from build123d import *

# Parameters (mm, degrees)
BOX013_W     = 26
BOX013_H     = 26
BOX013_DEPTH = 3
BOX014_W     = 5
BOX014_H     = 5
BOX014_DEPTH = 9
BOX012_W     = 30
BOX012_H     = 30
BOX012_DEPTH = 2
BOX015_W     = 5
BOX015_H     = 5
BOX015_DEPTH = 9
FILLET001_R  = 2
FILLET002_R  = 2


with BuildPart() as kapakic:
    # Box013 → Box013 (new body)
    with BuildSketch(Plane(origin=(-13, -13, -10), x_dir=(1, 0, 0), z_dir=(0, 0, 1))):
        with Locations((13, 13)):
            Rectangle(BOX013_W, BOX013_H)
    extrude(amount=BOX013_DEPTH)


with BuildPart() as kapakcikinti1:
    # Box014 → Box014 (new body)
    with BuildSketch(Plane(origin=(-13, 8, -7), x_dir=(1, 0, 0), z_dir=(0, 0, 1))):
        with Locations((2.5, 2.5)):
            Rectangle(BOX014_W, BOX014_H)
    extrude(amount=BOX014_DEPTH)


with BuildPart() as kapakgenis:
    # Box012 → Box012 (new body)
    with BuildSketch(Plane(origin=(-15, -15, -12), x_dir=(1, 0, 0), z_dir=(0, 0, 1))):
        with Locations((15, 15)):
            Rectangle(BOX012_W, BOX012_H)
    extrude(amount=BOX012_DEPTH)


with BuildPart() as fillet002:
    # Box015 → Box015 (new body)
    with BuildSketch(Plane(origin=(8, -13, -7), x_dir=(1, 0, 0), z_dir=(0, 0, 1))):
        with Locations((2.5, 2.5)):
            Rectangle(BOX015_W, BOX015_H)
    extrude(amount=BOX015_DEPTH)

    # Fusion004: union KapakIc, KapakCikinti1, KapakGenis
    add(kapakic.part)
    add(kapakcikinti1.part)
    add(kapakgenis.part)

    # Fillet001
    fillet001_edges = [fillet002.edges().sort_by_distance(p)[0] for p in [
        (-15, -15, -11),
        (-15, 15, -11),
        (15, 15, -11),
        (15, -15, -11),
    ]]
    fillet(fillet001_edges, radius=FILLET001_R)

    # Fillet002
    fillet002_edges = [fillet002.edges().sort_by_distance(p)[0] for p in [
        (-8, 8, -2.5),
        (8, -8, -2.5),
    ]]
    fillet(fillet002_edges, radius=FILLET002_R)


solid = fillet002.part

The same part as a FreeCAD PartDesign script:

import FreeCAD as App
import Part
import Sketcher
from FreeCAD import Vector
Q = App.Units.Quantity


def edges_at(feature, points):
    """Names of the edges that pass closest to the given points."""
    edges = feature.Shape.Edges
    near = lambda p: min(range(len(edges)), key=lambda i: edges[i].distToShape(Part.Vertex(*p))[0])
    return sorted({f"Edge{near(p) + 1}" for p in points})

doc = App.newDocument("Part")
body = doc.addObject("PartDesign::Body", "Body")

sketch1 = body.newObject("Sketcher::SketchObject", "Sketch")
sketch1.AttachmentSupport = (doc.getObject("XY_Plane"), [""])
sketch1.MapMode = "FlatFace"
sketch1.AttachmentOffset = App.Placement(Vector(0, 0, -10), App.Rotation())
sketch1.addGeometry(Part.LineSegment(Vector(-13, 13, 0), Vector(-13, -13, 0)), False)
sketch1.addGeometry(Part.LineSegment(Vector(-13, -13, 0), Vector(13, -13, 0)), False)
sketch1.addGeometry(Part.LineSegment(Vector(13, -13, 0), Vector(13, 13, 0)), False)
sketch1.addGeometry(Part.LineSegment(Vector(13, 13, 0), Vector(-13, 13, 0)), False)
sketch1.addConstraint(Sketcher.Constraint("Coincident", 0, 2, 1, 1))
sketch1.addConstraint(Sketcher.Constraint("Coincident", 1, 2, 2, 1))
sketch1.addConstraint(Sketcher.Constraint("Coincident", 2, 2, 3, 1))
sketch1.addConstraint(Sketcher.Constraint("Coincident", 3, 2, 0, 1))
sketch1.addConstraint(Sketcher.Constraint("Vertical", 0))
sketch1.addConstraint(Sketcher.Constraint("Horizontal", 1))
sketch1.addConstraint(Sketcher.Constraint("Vertical", 2))
sketch1.addConstraint(Sketcher.Constraint("Horizontal", 3))
sketch1.addConstraint(Sketcher.Constraint("Symmetric", 0, 2, 2, 2, -1, 1))
sketch1.addConstraint(Sketcher.Constraint("Equal", 3, 0))
sketch1.addConstraint(Sketcher.Constraint("DistanceX", 1, 1, 1, 2, Q("26 mm")))
pad1 = body.newObject("PartDesign::Pad", "Pad")
pad1.Profile = sketch1
pad1.Length = 3
body2 = doc.addObject("PartDesign::Body", "Body001")

sketch2 = body2.newObject("Sketcher::SketchObject", "Sketch001")
sketch2.AttachmentSupport = (doc.getObject("XY_Plane001"), [""])
sketch2.MapMode = "FlatFace"
sketch2.AttachmentOffset = App.Placement(Vector(0, 0, -7), App.Rotation())
sketch2.addGeometry(Part.LineSegment(Vector(-13, 13, 0), Vector(-13, 8, 0)), False)
sketch2.addGeometry(Part.LineSegment(Vector(-13, 8, 0), Vector(-8, 8, 0)), False)
sketch2.addGeometry(Part.LineSegment(Vector(-8, 8, 0), Vector(-8, 13, 0)), False)
sketch2.addGeometry(Part.LineSegment(Vector(-8, 13, 0), Vector(-13, 13, 0)), False)
sketch2.addConstraint(Sketcher.Constraint("Coincident", 0, 2, 1, 1))
sketch2.addConstraint(Sketcher.Constraint("Coincident", 1, 2, 2, 1))
sketch2.addConstraint(Sketcher.Constraint("Coincident", 2, 2, 3, 1))
sketch2.addConstraint(Sketcher.Constraint("Coincident", 3, 2, 0, 1))
sketch2.addConstraint(Sketcher.Constraint("Vertical", 0))
sketch2.addConstraint(Sketcher.Constraint("Horizontal", 1))
sketch2.addConstraint(Sketcher.Constraint("Vertical", 2))
sketch2.addConstraint(Sketcher.Constraint("Horizontal", 3))
sketch2.addConstraint(Sketcher.Constraint("Equal", 3, 0))
sketch2.addConstraint(Sketcher.Constraint("DistanceX", 1, 1, 1, 2, Q("5 mm")))
sketch2.addConstraint(Sketcher.Constraint("DistanceX", 0, 2, -1, 1, Q("13 mm")))
sketch2.addConstraint(Sketcher.Constraint("DistanceY", -1, 1, 0, 2, Q("8 mm")))
pad2 = body2.newObject("PartDesign::Pad", "Pad001")
pad2.Profile = sketch2
pad2.Length = 9
body3 = doc.addObject("PartDesign::Body", "Body002")

sketch3 = body3.newObject("Sketcher::SketchObject", "Sketch002")
sketch3.AttachmentSupport = (doc.getObject("XY_Plane002"), [""])
sketch3.MapMode = "FlatFace"
sketch3.AttachmentOffset = App.Placement(Vector(0, 0, -12), App.Rotation())
sketch3.addGeometry(Part.LineSegment(Vector(-15, 15, 0), Vector(-15, -15, 0)), False)
sketch3.addGeometry(Part.LineSegment(Vector(-15, -15, 0), Vector(15, -15, 0)), False)
sketch3.addGeometry(Part.LineSegment(Vector(15, -15, 0), Vector(15, 15, 0)), False)
sketch3.addGeometry(Part.LineSegment(Vector(15, 15, 0), Vector(-15, 15, 0)), False)
sketch3.addConstraint(Sketcher.Constraint("Coincident", 0, 2, 1, 1))
sketch3.addConstraint(Sketcher.Constraint("Coincident", 1, 2, 2, 1))
sketch3.addConstraint(Sketcher.Constraint("Coincident", 2, 2, 3, 1))
sketch3.addConstraint(Sketcher.Constraint("Coincident", 3, 2, 0, 1))
sketch3.addConstraint(Sketcher.Constraint("Vertical", 0))
sketch3.addConstraint(Sketcher.Constraint("Horizontal", 1))
sketch3.addConstraint(Sketcher.Constraint("Vertical", 2))
sketch3.addConstraint(Sketcher.Constraint("Horizontal", 3))
sketch3.addConstraint(Sketcher.Constraint("Symmetric", 0, 2, 2, 2, -1, 1))
sketch3.addConstraint(Sketcher.Constraint("Equal", 3, 0))
sketch3.addConstraint(Sketcher.Constraint("DistanceX", 1, 1, 1, 2, Q("30 mm")))
pad3 = body3.newObject("PartDesign::Pad", "Pad002")
pad3.Profile = sketch3
pad3.Length = 2
body4 = doc.addObject("PartDesign::Body", "Body003")

sketch4 = body4.newObject("Sketcher::SketchObject", "Sketch003")
sketch4.AttachmentSupport = (doc.getObject("XY_Plane003"), [""])
sketch4.MapMode = "FlatFace"
sketch4.AttachmentOffset = App.Placement(Vector(0, 0, -7), App.Rotation())
sketch4.addGeometry(Part.LineSegment(Vector(8, -8, 0), Vector(8, -13, 0)), False)
sketch4.addGeometry(Part.LineSegment(Vector(8, -13, 0), Vector(13, -13, 0)), False)
sketch4.addGeometry(Part.LineSegment(Vector(13, -13, 0), Vector(13, -8, 0)), False)
sketch4.addGeometry(Part.LineSegment(Vector(13, -8, 0), Vector(8, -8, 0)), False)
sketch4.addConstraint(Sketcher.Constraint("Coincident", 0, 2, 1, 1))
sketch4.addConstraint(Sketcher.Constraint("Coincident", 1, 2, 2, 1))
sketch4.addConstraint(Sketcher.Constraint("Coincident", 2, 2, 3, 1))
sketch4.addConstraint(Sketcher.Constraint("Coincident", 3, 2, 0, 1))
sketch4.addConstraint(Sketcher.Constraint("Vertical", 0))
sketch4.addConstraint(Sketcher.Constraint("Horizontal", 1))
sketch4.addConstraint(Sketcher.Constraint("Vertical", 2))
sketch4.addConstraint(Sketcher.Constraint("Horizontal", 3))
sketch4.addConstraint(Sketcher.Constraint("Equal", 3, 0))
sketch4.addConstraint(Sketcher.Constraint("DistanceX", 1, 1, 1, 2, Q("5 mm")))
sketch4.addConstraint(Sketcher.Constraint("DistanceX", -1, 1, 0, 2, Q("8 mm")))
sketch4.addConstraint(Sketcher.Constraint("DistanceY", 0, 2, -1, 1, Q("13 mm")))
pad4 = body4.newObject("PartDesign::Pad", "Pad003")
pad4.Profile = sketch4
pad4.Length = 9
doc.recompute()

boolean = body4.newObject("PartDesign::Boolean", "Boolean")
boolean.Type = "Fuse"
boolean.addObjects([body])
doc.recompute()

boolean2 = body4.newObject("PartDesign::Boolean", "Boolean001")
boolean2.Type = "Fuse"
boolean2.addObjects([body2])
doc.recompute()

boolean3 = body4.newObject("PartDesign::Boolean", "Boolean002")
boolean3.Type = "Fuse"
boolean3.addObjects([body3])
doc.recompute()

fillet = body4.newObject("PartDesign::Fillet", "Fillet")
fillet.Base = (boolean3, edges_at(boolean3, [
    (-15, -15, -11),
    (-15, 15, -11),
    (15, 15, -11),
    (15, -15, -11),
]))
fillet.Radius = 2
doc.recompute()

fillet2 = body4.newObject("PartDesign::Fillet", "Fillet001")
fillet2.Base = (fillet, edges_at(fillet, [(-8, 8, -2.5), (8, -8, -2.5)]))
fillet2.Radius = 2

doc.recompute()
